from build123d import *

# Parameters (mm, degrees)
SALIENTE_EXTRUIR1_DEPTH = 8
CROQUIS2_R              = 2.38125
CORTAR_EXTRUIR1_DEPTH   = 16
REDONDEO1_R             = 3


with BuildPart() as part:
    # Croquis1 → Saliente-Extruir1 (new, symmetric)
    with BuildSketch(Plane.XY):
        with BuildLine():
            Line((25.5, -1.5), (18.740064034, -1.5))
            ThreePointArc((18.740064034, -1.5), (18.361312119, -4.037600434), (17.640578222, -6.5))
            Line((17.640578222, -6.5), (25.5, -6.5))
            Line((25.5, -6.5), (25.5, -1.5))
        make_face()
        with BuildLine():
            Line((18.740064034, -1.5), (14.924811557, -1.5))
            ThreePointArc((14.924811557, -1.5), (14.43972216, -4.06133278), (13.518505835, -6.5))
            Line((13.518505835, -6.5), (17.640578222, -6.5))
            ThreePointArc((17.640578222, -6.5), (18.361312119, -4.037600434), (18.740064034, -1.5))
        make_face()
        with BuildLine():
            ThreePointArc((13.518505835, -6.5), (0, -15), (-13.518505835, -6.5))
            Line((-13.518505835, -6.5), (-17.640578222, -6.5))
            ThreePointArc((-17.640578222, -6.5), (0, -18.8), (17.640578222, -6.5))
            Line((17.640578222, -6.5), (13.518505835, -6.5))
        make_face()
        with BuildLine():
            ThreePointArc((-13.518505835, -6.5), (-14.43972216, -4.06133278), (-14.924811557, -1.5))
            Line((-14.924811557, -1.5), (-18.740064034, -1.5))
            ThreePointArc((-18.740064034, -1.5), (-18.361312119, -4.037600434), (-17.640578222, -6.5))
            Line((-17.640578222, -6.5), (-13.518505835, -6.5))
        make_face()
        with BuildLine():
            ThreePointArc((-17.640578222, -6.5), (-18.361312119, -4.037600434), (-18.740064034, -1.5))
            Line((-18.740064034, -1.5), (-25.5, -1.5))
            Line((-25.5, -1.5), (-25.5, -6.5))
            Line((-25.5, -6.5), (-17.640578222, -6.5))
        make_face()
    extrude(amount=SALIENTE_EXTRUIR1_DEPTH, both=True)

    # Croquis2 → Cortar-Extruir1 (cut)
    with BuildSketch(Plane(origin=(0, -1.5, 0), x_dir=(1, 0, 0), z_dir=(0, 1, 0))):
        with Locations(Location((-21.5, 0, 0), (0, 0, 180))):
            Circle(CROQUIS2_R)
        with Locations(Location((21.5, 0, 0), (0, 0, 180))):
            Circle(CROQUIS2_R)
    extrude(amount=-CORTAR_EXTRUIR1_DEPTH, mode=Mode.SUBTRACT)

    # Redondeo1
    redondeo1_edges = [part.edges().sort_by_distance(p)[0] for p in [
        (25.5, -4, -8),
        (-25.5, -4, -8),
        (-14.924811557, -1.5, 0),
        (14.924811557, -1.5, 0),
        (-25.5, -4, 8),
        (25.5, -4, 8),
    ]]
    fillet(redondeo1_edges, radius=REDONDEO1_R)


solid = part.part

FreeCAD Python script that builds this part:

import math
import FreeCAD as App
import Part
import Sketcher

V = App.Vector
Q = App.Units.Quantity


def edges_at(feature, points):
    """Names of the edges that pass closest to the given points."""
    edges = feature.Shape.Edges
    near = lambda p: min(range(len(edges)), key=lambda i: edges[i].distToShape(Part.Vertex(*p))[0])
    return sorted({f"Edge{near(p) + 1}" for p in points})

doc = App.newDocument("Part")
body = doc.addObject("PartDesign::Body", "Body")

sketch1 = body.newObject("Sketcher::SketchObject", "Sketch")
sketch1.AttachmentSupport = (doc.getObject("XY_Plane"), [""])
sketch1.MapMode = "FlatFace"
sketch1.addGeometry([
    Part.LineSegment(V(26, -2, 0), V(15, -2, 0)),
    Part.ArcOfCircle(Part.Circle(V(0, 0, 0), V(0, 0, 1), 15), math.radians(-25.68), math.radians(-5.74)),
    Part.ArcOfCircle(Part.Circle(V(0, 0, 0), V(0, 0, 1), 15), math.radians(-154), math.radians(-26)),
    Part.ArcOfCircle(Part.Circle(V(0, 0, 0), V(0, 0, 1), 15), math.radians(-174.26), math.radians(-154.32)),
    Part.LineSegment(V(-15, -2, 0), V(-26, -2, 0)),
    Part.LineSegment(V(-26, -2, 0), V(-26, -6, 0)),
    Part.LineSegment(V(-26, -6, 0), V(-18, -6, 0)),
    Part.ArcOfCircle(Part.Circle(V(0, 0, 0), V(0, 0, 1), 19), math.radians(-160), math.radians(-20)),
    Part.LineSegment(V(18, -6, 0), V(26, -6, 0)),
    Part.LineSegment(V(26, -6, 0), V(26, -2, 0)),
], False)
sketch1.addConstraint([
    Sketcher.Constraint("Coincident", 0, 2, 1, 2),
    Sketcher.Constraint("Tangent", 1, 1, 2, 2),
    Sketcher.Constraint("Tangent", 2, 1, 3, 2),
    Sketcher.Constraint("Coincident", 3, 1, 4, 1),
    Sketcher.Constraint("Coincident", 4, 2, 5, 1),
    Sketcher.Constraint("Coincident", 5, 2, 6, 1),
    Sketcher.Constraint("Coincident", 6, 2, 7, 1),
    Sketcher.Constraint("Coincident", 7, 2, 8, 1),
    Sketcher.Constraint("Coincident", 8, 2, 9, 1),
    Sketcher.Constraint("Coincident", 9, 2, 0, 1),
    Sketcher.Constraint("Horizontal", 0),
    Sketcher.Constraint("Horizontal", 4),
    Sketcher.Constraint("Vertical", 5),
    Sketcher.Constraint("Horizontal", 6),
    Sketcher.Constraint("Horizontal", 8),
    Sketcher.Constraint("Vertical", 9),
    Sketcher.Constraint("Coincident", 1, 3, -1, 1),
    Sketcher.Constraint("Coincident", 3, 3, -1, 1),
    Sketcher.Constraint("Coincident", 7, 3, -1, 1),
    Sketcher.Constraint("Symmetric", 5, 2, 8, 2, -2),
    Sketcher.Constraint("Horizontal", 1, 1, 2, 1),
    Sketcher.Constraint("Horizontal", 0, 2, 3, 1),
    Sketcher.Constraint("Horizontal", 2, 1, 5, 2),
    Sketcher.Constraint("Radius", 1, Q("15 mm")),
    Sketcher.Constraint("Radius", 7, Q("18.8 mm")),
    Sketcher.Constraint("DistanceY", 5, 2, 5, 1, Q("5 mm")),
    Sketcher.Constraint("DistanceY", 0, 2, -1, 1, Q("1.5 mm")),
    Sketcher.Constraint("DistanceX", 4, 2, -1, 1, Q("25.5 mm")),
])
pad1 = body.newObject("PartDesign::Pad", "Pad")
pad1.Profile = sketch1
pad1.Length = 16
pad1.Midplane = True

sketch2 = body.newObject("Sketcher::SketchObject", "Sketch001")
sketch2.AttachmentSupport = (doc.getObject("XZ_Plane"), [""])
sketch2.MapMode = "FlatFace"
sketch2.AttachmentOffset = App.Placement(V(0, 0, 1.5), App.Rotation())
sketch2.addGeometry([
    Part.Circle(V(-21.5, 0, 0), V(0, 0, 1), 2.4),
    Part.Circle(V(21.5, 0, 0), V(0, 0, 1), 2.4),
], False)
sketch2.addConstraint([
    Sketcher.Constraint("Equal", 0, 1),
    Sketcher.Constraint("Symmetric", 0, 3, 1, 3, -1, 1),
    Sketcher.Constraint("PointOnObject", 0, 3, -1),
    Sketcher.Constraint("DistanceX", 0, 3, 1, 3, Q("43 mm")),
    Sketcher.Constraint("Diameter", 0, Q("4.7625 mm")),
])
pocket1 = body.newObject("PartDesign::Pocket", "Pocket")
pocket1.Profile = sketch2
pocket1.Length = 16
pocket1.Reversed = True
doc.recompute()

fillet = body.newObject("PartDesign::Fillet", "Fillet")
fillet.Base = (pocket1, edges_at(pocket1, [
    (25.5, -4, -8),
    (-25.5, -4, -8),
    (-14.925, -1.5, 0),
    (14.925, -1.5, 0),
    (-25.5, -4, 8),
    (25.5, -4, 8),
]))
fillet.Radius = 3

doc.recompute()
